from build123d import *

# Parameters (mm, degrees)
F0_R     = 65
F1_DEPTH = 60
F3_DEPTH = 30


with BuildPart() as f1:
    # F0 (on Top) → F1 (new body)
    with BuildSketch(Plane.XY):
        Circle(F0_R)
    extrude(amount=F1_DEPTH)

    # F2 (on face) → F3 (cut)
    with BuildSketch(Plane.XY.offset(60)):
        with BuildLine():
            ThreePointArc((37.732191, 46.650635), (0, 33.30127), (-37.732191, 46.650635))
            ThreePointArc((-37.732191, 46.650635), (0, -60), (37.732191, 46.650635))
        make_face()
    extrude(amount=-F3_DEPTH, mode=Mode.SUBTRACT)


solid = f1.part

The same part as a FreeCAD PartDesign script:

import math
import FreeCAD as App
import Part
import Sketcher

doc = App.newDocument("Part")
params = doc.addObject("Spreadsheet::Sheet", "Params")
for row, (alias, value) in enumerate([
    ("sketch1_diameter", "130 mm"),
    ("pad1_length", "60 mm"),
    ("sketch2_radius", "59.999999 mm"),
    ("pocket1_length", "30 mm"),
], start=1):
    params.set(f"A{row}", alias)
    params.set(f"B{row}", "=" + value)
    params.setAlias(f"B{row}", alias)

body = doc.addObject("PartDesign::Body", "Body")

# Sketch on XY plane
sketch1 = body.newObject("Sketcher::SketchObject", "Sketch")
sketch1.AttachmentSupport = (doc.getObject("XY_Plane"), [""])
sketch1.MapMode = "FlatFace"
sketch1.addGeometry(Part.Circle(App.Vector(0, 0, 0), App.Vector(0, 0, 1), 65), False)
sketch1.addConstraint([
    Sketcher.Constraint("Coincident", 0, 3, -1, 1),
    Sketcher.Constraint("Diameter", 0, 130.0),
])
sketch1.setExpression("Constraints[1]", "Params.sketch1_diameter")
pad1 = body.newObject("PartDesign::Pad", "Pad")
pad1.Profile = sketch1
pad1.setExpression("Length", "Params.pad1_length")

# Sketch on XY plane
sketch2 = body.newObject("Sketcher::SketchObject", "Sketch001")
sketch2.AttachmentSupport = (doc.getObject("XY_Plane"), [""])
sketch2.MapMode = "FlatFace"
sketch2.AttachmentOffset = App.Placement(App.Vector(0, 0, 60), App.Rotation())
sketch2.addGeometry([
    Part.ArcOfCircle(Part.Circle(App.Vector(0, 93, 0), App.Vector(0, 0, 1), 60), math.radians(-129), math.radians(-51)),
    Part.ArcOfCircle(Part.Circle(App.Vector(0, 0, 0), App.Vector(0, 0, 1), 60), math.radians(129), math.radians(411)),
], False)
sketch2.addConstraint([
    Sketcher.Constraint("Coincident", 0, 1, 1, 1),
    Sketcher.Constraint("Coincident", 1, 2, 0, 2),
    Sketcher.Constraint("Coincident", 1, 3, -1, 1),
    Sketcher.Constraint("Equal", 0, 1),
    Sketcher.Constraint("PointOnObject", 0, 3, -2),
    Sketcher.Constraint("Radius", 0, 59.999999),
    Sketcher.Constraint("DistanceY", -1, 1, 0, 3, 93.301269),
])
sketch2.setExpression("Constraints[5]", "Params.sketch2_radius")
pocket1 = body.newObject("PartDesign::Pocket", "Pocket")
pocket1.Profile = sketch2
pocket1.setExpression("Length", "Params.pocket1_length")

doc.recompute()
